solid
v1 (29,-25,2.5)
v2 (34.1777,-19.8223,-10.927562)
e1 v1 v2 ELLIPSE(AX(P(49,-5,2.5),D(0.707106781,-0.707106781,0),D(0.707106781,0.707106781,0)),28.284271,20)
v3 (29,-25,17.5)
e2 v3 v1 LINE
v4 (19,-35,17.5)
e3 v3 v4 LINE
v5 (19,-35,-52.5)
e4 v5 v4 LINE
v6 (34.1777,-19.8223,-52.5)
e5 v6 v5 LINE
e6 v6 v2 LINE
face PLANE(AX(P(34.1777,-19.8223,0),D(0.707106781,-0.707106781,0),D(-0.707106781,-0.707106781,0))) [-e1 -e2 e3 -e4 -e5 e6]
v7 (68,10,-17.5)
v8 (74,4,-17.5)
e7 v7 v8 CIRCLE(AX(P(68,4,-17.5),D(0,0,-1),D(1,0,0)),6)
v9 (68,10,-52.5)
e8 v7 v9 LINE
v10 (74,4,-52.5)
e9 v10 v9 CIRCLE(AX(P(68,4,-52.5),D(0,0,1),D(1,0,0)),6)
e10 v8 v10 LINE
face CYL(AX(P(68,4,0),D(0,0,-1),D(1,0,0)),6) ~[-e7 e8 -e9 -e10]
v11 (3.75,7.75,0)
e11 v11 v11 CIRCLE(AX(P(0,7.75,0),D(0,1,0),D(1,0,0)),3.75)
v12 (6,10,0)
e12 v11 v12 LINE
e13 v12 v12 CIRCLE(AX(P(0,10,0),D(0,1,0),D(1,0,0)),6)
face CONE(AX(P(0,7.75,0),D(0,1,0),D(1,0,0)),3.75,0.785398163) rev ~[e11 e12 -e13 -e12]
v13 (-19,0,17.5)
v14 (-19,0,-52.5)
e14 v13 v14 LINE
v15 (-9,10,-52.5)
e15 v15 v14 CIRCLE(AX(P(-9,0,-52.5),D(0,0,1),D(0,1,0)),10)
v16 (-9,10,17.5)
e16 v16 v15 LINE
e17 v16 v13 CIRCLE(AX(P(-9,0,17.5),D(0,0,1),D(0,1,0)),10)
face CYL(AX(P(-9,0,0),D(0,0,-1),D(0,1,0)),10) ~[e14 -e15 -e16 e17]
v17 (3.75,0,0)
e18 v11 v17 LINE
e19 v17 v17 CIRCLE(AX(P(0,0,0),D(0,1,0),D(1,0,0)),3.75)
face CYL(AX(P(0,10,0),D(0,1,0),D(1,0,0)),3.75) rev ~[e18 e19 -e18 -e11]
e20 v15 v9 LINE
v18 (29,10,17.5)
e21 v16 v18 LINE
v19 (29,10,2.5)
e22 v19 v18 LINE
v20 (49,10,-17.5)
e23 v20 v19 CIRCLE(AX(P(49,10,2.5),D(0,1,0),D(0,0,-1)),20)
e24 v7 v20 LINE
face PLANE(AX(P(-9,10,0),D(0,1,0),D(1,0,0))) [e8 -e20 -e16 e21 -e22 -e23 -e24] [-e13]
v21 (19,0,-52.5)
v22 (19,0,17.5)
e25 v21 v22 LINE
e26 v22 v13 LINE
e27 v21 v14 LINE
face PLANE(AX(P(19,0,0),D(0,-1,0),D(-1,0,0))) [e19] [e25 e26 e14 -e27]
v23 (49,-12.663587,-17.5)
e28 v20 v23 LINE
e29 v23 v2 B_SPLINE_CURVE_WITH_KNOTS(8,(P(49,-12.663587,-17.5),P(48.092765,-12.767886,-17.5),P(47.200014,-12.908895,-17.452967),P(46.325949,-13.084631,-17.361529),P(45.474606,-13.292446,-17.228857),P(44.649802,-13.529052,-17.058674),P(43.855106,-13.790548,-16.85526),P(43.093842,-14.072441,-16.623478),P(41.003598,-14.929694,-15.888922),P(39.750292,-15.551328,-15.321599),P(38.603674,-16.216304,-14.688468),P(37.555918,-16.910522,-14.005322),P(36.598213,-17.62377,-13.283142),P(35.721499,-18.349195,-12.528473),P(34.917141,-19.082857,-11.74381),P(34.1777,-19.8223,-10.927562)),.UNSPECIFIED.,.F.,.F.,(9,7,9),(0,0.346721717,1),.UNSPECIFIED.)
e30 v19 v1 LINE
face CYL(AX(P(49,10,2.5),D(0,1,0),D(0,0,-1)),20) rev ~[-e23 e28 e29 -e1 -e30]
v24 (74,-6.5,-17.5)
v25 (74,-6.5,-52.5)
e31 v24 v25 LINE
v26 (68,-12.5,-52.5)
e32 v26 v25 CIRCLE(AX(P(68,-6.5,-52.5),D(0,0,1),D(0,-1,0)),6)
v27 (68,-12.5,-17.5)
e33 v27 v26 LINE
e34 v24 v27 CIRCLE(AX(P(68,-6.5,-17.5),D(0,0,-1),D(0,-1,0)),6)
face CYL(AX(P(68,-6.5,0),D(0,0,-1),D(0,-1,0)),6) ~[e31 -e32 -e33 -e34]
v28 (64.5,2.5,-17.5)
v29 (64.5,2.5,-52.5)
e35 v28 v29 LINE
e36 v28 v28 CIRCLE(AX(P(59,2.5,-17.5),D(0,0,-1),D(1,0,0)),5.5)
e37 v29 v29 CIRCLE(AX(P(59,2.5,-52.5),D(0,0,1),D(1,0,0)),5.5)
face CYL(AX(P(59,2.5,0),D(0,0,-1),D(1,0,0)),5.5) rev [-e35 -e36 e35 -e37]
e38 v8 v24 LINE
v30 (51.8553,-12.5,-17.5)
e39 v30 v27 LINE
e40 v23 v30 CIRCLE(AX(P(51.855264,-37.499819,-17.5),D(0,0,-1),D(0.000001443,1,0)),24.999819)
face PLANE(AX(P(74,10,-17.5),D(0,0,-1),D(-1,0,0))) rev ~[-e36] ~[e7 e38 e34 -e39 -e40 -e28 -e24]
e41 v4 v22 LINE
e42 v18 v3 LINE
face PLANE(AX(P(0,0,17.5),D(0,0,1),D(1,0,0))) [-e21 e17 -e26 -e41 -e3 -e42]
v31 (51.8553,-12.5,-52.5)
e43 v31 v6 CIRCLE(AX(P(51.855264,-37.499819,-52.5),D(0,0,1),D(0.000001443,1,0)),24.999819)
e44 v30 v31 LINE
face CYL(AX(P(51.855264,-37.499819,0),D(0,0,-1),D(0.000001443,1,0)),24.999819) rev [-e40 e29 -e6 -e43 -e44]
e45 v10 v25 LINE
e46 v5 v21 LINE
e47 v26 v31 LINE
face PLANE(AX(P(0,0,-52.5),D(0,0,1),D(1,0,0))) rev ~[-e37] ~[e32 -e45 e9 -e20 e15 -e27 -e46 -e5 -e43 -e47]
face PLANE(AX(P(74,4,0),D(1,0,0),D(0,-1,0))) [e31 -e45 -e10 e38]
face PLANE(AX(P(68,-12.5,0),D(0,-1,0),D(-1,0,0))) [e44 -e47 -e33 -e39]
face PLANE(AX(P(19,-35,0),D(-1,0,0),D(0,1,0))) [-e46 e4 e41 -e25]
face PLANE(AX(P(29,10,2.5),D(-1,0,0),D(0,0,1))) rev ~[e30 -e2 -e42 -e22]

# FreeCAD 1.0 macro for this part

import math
import FreeCAD as App
import Part
import Sketcher
Q = App.Units.Quantity


def edges_at(feature, points):
    """Names of the edges that pass closest to the given points."""
    edges = feature.Shape.Edges
    near = lambda p: min(range(len(edges)), key=lambda i: edges[i].distToShape(Part.Vertex(*p))[0])
    return sorted({f"Edge{near(p) + 1}" for p in points})

doc = App.newDocument("Part")
body = doc.addObject("PartDesign::Body", "Body")

sketch1 = body.newObject("Sketcher::SketchObject", "Sketch")
sketch1.AttachmentSupport = (doc.getObject("XY_Plane"), [""])
sketch1.MapMode = "FlatFace"
sketch1.addGeometry(Part.LineSegment(App.Vector(-19, 0, 0), App.Vector(19, 0, 0)), False)
sketch1.addGeometry(Part.LineSegment(App.Vector(19, 0, 0), App.Vector(19, -35, 0)), False)
sketch1.addGeometry(Part.LineSegment(App.Vector(19, -35, 0), App.Vector(34.1777, -19.8223, 0)), False)
sketch1.addGeometry(Part.ArcOfCircle(Part.Circle(App.Vector(51.8553, -37.5, 0), App.Vector(0, 0, 1), 25), math.radians(90), math.radians(134.999838)), False)
sketch1.addGeometry(Part.LineSegment(App.Vector(51.8553, -12.5, 0), App.Vector(68, -12.5, 0)), False)
sketch1.addGeometry(Part.ArcOfCircle(Part.Circle(App.Vector(68, -6.5, 0), App.Vector(0, 0, 1), 6), math.radians(-90), math.radians(0)), False)
sketch1.addGeometry(Part.LineSegment(App.Vector(74, -6.5, 0), App.Vector(74, 4, 0)), False)
sketch1.addGeometry(Part.ArcOfCircle(Part.Circle(App.Vector(68, 4, 0), App.Vector(0, 0, 1), 6), math.radians(0), math.radians(90)), False)
sketch1.addGeometry(Part.LineSegment(App.Vector(68, 10, 0), App.Vector(-9, 10, 0)), False)
sketch1.addGeometry(Part.ArcOfCircle(Part.Circle(App.Vector(-9, 0, 0), App.Vector(0, 0, 1), 10), math.radians(90), math.radians(180)), False)
sketch1.addGeometry(Part.Circle(App.Vector(59, 2.5, 0), App.Vector(0, 0, 1), 5.5), False)
sketch1.addConstraint(Sketcher.Constraint("Coincident", 0, 2, 1, 1))
sketch1.addConstraint(Sketcher.Constraint("Coincident", 1, 2, 2, 1))
sketch1.addConstraint(Sketcher.Constraint("Tangent", 2, 2, 3, 2))
sketch1.addConstraint(Sketcher.Constraint("Tangent", 3, 1, 4, 1))
sketch1.addConstraint(Sketcher.Constraint("Tangent", 4, 2, 5, 1))
sketch1.addConstraint(Sketcher.Constraint("Tangent", 5, 2, 6, 1))
sketch1.addConstraint(Sketcher.Constraint("Tangent", 6, 2, 7, 1))
sketch1.addConstraint(Sketcher.Constraint("Tangent", 7, 2, 8, 1))
sketch1.addConstraint(Sketcher.Constraint("Tangent", 8, 2, 9, 1))
sketch1.addConstraint(Sketcher.Constraint("Coincident", 9, 2, 0, 1))
sketch1.addConstraint(Sketcher.Constraint("Horizontal", 0))
sketch1.addConstraint(Sketcher.Constraint("Vertical", 1))
sketch1.addConstraint(Sketcher.Constraint("Horizontal", 4))
sketch1.addConstraint(Sketcher.Constraint("Vertical", 6))
sketch1.addConstraint(Sketcher.Constraint("Horizontal", 8))
sketch1.addConstraint(Sketcher.Constraint("Equal", 5, 7))
sketch1.addConstraint(Sketcher.Constraint("Symmetric", 0, 2, 9, 2, -1, 1))
sketch1.addConstraint(Sketcher.Constraint("PointOnObject", 9, 3, -1))
sketch1.addConstraint(Sketcher.Constraint("Diameter", 10, 11.0))
sketch1.addConstraint(Sketcher.Constraint("Radius", 3, 25.0))
sketch1.addConstraint(Sketcher.Constraint("Radius", 5, 6.0))
sketch1.addConstraint(Sketcher.Constraint("Radius", 9, 10.0))
sketch1.addConstraint(Sketcher.Constraint("DistanceY", 1, 2, 1, 1, 35.0))
sketch1.addConstraint(Sketcher.Constraint("Angle", 2, Q("45 deg")))
sketch1.addConstraint(Sketcher.Constraint("DistanceX", -1, 1, 0, 2, 19.0))
sketch1.addConstraint(Sketcher.Constraint("DistanceY", 3, 3, 10, 3, 40.0))
sketch1.addConstraint(Sketcher.Constraint("DistanceX", 0, 2, 10, 3, 40.0))
sketch1.addConstraint(Sketcher.Constraint("DistanceX", 10, 3, 5, 2, 15.0))
sketch1.addConstraint(Sketcher.Constraint("DistanceY", 10, 3, 7, 2, 7.5))
pad1 = body.newObject("PartDesign::Pad", "Pad")
pad1.Profile = sketch1
pad1.Type = "TwoLengths"
pad1.Length = 17.5
pad1.Length2 = 52.5

sketch2 = body.newObject("Sketcher::SketchObject", "Sketch001")
sketch2.AttachmentSupport = (doc.getObject("XZ_Plane"), [""])
sketch2.MapMode = "FlatFace"
sketch2.AttachmentOffset = App.Placement(App.Vector(0, 0, -10), App.Rotation())
sketch2.addGeometry(Part.Circle(App.Vector(0, 0, 0), App.Vector(0, 0, 1), 3.75), False)
sketch2.addConstraint(Sketcher.Constraint("Coincident", 0, 3, -1, 1))
sketch2.addConstraint(Sketcher.Constraint("Diameter", 0, 7.5))
pocket1 = body.newObject("PartDesign::Pocket", "Pocket")
pocket1.Profile = sketch2
pocket1.Type = "ThroughAll"
pocket1.Reversed = True
doc.recompute()

chamfer = body.newObject("PartDesign::Chamfer", "Chamfer")
chamfer.Base = (pocket1, edges_at(pocket1, [(-3.75, 10, 0)]))
chamfer.Size = 2.25

sketch3 = body.newObject("Sketcher::SketchObject", "Sketch002")
sketch3.AttachmentSupport = (doc.getObject("XZ_Plane"), [""])
sketch3.MapMode = "FlatFace"
sketch3.AttachmentOffset = App.Placement(App.Vector(0, 0, -10), App.Rotation())
sketch3.addGeometry(Part.LineSegment(App.Vector(29, 2.5, 0), App.Vector(29, 17.5, 0)), False)
sketch3.addGeometry(Part.LineSegment(App.Vector(29, 17.5, 0), App.Vector(74, 17.5, 0)), False)
sketch3.addGeometry(Part.LineSegment(App.Vector(74, 17.5, 0), App.Vector(74, -17.5, 0)), False)
sketch3.addGeometry(Part.LineSegment(App.Vector(74, -17.5, 0), App.Vector(49, -17.5, 0)), False)
sketch3.addGeometry(Part.ArcOfCircle(Part.Circle(App.Vector(49, 2.5, 0), App.Vector(0, 0, 1), 20), math.radians(180), math.radians(270)), False)
sketch3.addConstraint(Sketcher.Constraint("Coincident", 0, 2, 1, 1))
sketch3.addConstraint(Sketcher.Constraint("Coincident", 1, 2, 2, 1))
sketch3.addConstraint(Sketcher.Constraint("Coincident", 2, 2, 3, 1))
sketch3.addConstraint(Sketcher.Constraint("Tangent", 3, 2, 4, 2))
sketch3.addConstraint(Sketcher.Constraint("Tangent", 4, 1, 0, 1))
sketch3.addConstraint(Sketcher.Constraint("Vertical", 0))
sketch3.addConstraint(Sketcher.Constraint("Horizontal", 1))
sketch3.addConstraint(Sketcher.Constraint("Vertical", 2))
sketch3.addConstraint(Sketcher.Constraint("Horizontal", 3))
sketch3.addConstraint(Sketcher.Constraint("Radius", 4, 20.0))
sketch3.addConstraint(Sketcher.Constraint("DistanceY", 2, 2, 2, 1, 35.0))
sketch3.addConstraint(Sketcher.Constraint("DistanceX", 1, 1, 1, 2, 45.0))
sketch3.addConstraint(Sketcher.Constraint("DistanceX", -1, 1, 4, 3, 49.0))
sketch3.addConstraint(Sketcher.Constraint("DistanceY", -1, 1, 4, 3, 2.5))
pocket2 = body.newObject("PartDesign::Pocket", "Pocket001")
pocket2.Profile = sketch3
pocket2.Type = "ThroughAll"
pocket2.Reversed = True

doc.recompute()
